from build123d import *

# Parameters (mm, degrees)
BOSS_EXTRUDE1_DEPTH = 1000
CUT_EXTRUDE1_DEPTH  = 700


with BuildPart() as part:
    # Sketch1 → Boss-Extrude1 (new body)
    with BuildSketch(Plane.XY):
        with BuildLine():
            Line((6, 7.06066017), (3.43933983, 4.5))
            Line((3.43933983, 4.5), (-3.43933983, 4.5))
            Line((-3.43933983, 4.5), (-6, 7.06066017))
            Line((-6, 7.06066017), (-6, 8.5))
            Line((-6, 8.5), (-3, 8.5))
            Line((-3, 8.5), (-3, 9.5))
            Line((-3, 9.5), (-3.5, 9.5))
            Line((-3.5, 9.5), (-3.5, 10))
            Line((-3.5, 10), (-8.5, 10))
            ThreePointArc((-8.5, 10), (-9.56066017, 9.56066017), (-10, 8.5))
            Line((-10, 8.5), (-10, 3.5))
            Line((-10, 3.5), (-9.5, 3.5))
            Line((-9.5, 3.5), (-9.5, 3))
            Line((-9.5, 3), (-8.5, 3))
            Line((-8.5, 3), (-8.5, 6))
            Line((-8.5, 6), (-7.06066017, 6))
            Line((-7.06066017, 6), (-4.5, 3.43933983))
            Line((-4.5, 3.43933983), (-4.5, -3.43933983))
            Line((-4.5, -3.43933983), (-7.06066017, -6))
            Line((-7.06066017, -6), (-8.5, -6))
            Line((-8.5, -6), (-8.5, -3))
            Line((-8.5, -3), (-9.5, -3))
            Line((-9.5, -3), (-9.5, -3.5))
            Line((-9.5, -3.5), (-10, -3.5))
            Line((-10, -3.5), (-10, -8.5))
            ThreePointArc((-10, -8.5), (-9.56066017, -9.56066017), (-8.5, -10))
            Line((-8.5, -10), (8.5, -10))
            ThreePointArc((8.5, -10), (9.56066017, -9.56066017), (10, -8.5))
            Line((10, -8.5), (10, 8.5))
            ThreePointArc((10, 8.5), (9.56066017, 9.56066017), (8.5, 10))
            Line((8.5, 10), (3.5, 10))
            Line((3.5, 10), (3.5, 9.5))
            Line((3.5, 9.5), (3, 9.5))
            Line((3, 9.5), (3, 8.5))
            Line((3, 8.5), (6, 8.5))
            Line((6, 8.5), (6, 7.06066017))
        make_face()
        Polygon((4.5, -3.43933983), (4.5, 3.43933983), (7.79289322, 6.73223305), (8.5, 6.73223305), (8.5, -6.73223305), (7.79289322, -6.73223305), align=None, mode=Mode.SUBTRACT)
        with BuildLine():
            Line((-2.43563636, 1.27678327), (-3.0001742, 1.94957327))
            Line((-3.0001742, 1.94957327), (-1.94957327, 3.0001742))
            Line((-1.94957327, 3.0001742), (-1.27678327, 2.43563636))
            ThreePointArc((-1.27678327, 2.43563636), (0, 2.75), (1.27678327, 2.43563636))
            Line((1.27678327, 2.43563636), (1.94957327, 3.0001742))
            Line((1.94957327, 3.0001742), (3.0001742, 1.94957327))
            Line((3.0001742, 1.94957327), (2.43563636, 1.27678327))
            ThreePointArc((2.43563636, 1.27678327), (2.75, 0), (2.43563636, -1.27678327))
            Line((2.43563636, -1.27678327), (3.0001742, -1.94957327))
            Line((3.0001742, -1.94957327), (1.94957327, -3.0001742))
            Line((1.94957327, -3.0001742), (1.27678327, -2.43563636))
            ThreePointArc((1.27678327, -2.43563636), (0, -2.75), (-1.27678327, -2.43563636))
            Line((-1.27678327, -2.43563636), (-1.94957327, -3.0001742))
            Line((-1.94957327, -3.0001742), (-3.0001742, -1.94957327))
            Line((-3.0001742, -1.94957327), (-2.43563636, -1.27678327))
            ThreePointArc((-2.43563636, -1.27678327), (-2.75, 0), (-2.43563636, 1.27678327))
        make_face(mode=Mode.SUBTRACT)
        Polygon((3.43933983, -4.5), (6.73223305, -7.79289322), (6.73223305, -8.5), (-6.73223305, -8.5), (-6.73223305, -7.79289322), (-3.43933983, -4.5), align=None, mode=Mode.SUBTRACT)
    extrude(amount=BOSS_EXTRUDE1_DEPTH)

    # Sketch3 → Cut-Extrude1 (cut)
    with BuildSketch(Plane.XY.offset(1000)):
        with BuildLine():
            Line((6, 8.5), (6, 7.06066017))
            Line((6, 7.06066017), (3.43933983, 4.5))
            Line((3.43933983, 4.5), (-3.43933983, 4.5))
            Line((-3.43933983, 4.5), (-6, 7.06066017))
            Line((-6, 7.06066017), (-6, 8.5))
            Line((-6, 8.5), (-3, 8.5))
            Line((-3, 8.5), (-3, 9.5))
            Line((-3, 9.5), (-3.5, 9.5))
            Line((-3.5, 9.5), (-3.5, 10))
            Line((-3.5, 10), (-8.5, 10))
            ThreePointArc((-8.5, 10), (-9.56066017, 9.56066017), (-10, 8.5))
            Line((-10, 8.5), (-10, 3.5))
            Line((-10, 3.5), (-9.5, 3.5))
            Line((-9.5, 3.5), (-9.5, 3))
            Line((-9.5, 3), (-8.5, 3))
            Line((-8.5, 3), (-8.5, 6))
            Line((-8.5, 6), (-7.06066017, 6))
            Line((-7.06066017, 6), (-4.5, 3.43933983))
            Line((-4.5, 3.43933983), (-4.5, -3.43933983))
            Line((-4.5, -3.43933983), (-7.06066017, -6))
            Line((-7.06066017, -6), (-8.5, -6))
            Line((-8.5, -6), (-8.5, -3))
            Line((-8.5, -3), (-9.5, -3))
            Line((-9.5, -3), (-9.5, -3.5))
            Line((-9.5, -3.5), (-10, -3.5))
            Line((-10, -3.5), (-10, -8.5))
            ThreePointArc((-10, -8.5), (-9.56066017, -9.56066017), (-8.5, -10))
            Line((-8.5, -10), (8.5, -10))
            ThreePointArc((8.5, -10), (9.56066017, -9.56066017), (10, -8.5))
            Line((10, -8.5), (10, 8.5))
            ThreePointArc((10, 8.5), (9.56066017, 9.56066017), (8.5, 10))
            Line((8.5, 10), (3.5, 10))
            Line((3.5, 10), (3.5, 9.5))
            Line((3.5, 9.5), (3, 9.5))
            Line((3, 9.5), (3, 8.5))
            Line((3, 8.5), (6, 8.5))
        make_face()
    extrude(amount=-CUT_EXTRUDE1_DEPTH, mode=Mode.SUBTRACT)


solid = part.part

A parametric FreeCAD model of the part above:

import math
import FreeCAD as App
import Part
import Sketcher

V = App.Vector
Q = App.Units.Quantity


def add_polygon(sketch, points):
    """Adds a closed chain of lines whose ends are joined by coincident constraints."""
    first, n = sketch.GeometryCount, len(points)
    for a, b in zip(points, points[1:] + points[:1]):
        sketch.addGeometry(Part.LineSegment(App.Vector(*a, 0), App.Vector(*b, 0)), False)
    for i in range(n):
        sketch.addConstraint(Sketcher.Constraint("Coincident", first + i, 2, first + (i + 1) % n, 1))

doc = App.newDocument("Part")
params = doc.addObject("Spreadsheet::Sheet", "Params")
for row, (alias, value) in enumerate([
    ("sketch1_radius", "1.5 mm"),
    ("sketch1_width", "3 mm"),
    ("sketch1_width2", "5 mm"),
    ("sketch1_width3", "1 mm"),
    ("sketch1_width4", "17 mm"),
    ("pad1_length", "1000 mm"),
    ("sketch2_radius", "1.5 mm"),
    ("sketch2_width", "3 mm"),
    ("sketch2_width2", "5 mm"),
    ("sketch2_width3", "1 mm"),
    ("sketch2_width4", "17 mm"),
    ("pocket1_length", "700 mm"),
], start=1):
    params.set(f"A{row}", alias)
    params.set(f"B{row}", "=" + value)
    params.setAlias(f"B{row}", alias)

body = doc.addObject("PartDesign::Body", "Body")

sketch1 = body.newObject("Sketcher::SketchObject", "Sketch")
sketch1.AttachmentSupport = (doc.getObject("XY_Plane"), [""])
sketch1.MapMode = "FlatFace"
sketch1.addGeometry(Part.LineSegment(V(6, 7.06066, 0), V(3.43934, 4.5, 0)), False)
sketch1.addGeometry(Part.LineSegment(V(3.43934, 4.5, 0), V(-3.43934, 4.5, 0)), False)
sketch1.addGeometry(Part.LineSegment(V(-3.43934, 4.5, 0), V(-6, 7.06066, 0)), False)
sketch1.addGeometry(Part.LineSegment(V(-6, 7.06066, 0), V(-6, 8.5, 0)), False)
sketch1.addGeometry(Part.LineSegment(V(-6, 8.5, 0), V(-3, 8.5, 0)), False)
sketch1.addGeometry(Part.LineSegment(V(-3, 8.5, 0), V(-3, 9.5, 0)), False)
sketch1.addGeometry(Part.LineSegment(V(-3, 9.5, 0), V(-3.5, 9.5, 0)), False)
sketch1.addGeometry(Part.LineSegment(V(-3.5, 9.5, 0), V(-3.5, 10, 0)), False)
sketch1.addGeometry(Part.LineSegment(V(-3.5, 10, 0), V(-8.5, 10, 0)), False)
sketch1.addGeometry(Part.ArcOfCircle(Part.Circle(V(-8.5, 8.5, 0), V(0, 0, 1), 1.5), math.radians(90), math.radians(180)), False)
sketch1.addGeometry(Part.LineSegment(V(-10, 8.5, 0), V(-10, 3.5, 0)), False)
sketch1.addGeometry(Part.LineSegment(V(-10, 3.5, 0), V(-9.5, 3.5, 0)), False)
sketch1.addGeometry(Part.LineSegment(V(-9.5, 3.5, 0), V(-9.5, 3, 0)), False)
sketch1.addGeometry(Part.LineSegment(V(-9.5, 3, 0), V(-8.5, 3, 0)), False)
sketch1.addGeometry(Part.LineSegment(V(-8.5, 3, 0), V(-8.5, 6, 0)), False)
sketch1.addGeometry(Part.LineSegment(V(-8.5, 6, 0), V(-7.06066, 6, 0)), False)
sketch1.addGeometry(Part.LineSegment(V(-7.06066, 6, 0), V(-4.5, 3.43934, 0)), False)
sketch1.addGeometry(Part.LineSegment(V(-4.5, 3.43934, 0), V(-4.5, -3.43934, 0)), False)
sketch1.addGeometry(Part.LineSegment(V(-4.5, -3.43934, 0), V(-7.06066, -6, 0)), False)
sketch1.addGeometry(Part.LineSegment(V(-7.06066, -6, 0), V(-8.5, -6, 0)), False)
sketch1.addGeometry(Part.LineSegment(V(-8.5, -6, 0), V(-8.5, -3, 0)), False)
sketch1.addGeometry(Part.LineSegment(V(-8.5, -3, 0), V(-9.5, -3, 0)), False)
sketch1.addGeometry(Part.LineSegment(V(-9.5, -3, 0), V(-9.5, -3.5, 0)), False)
sketch1.addGeometry(Part.LineSegment(V(-9.5, -3.5, 0), V(-10, -3.5, 0)), False)
sketch1.addGeometry(Part.LineSegment(V(-10, -3.5, 0), V(-10, -8.5, 0)), False)
sketch1.addGeometry(Part.ArcOfCircle(Part.Circle(V(-8.5, -8.5, 0), V(0, 0, 1), 1.5), math.radians(-180), math.radians(-90)), False)
sketch1.addGeometry(Part.LineSegment(V(-8.5, -10, 0), V(8.5, -10, 0)), False)
sketch1.addGeometry(Part.ArcOfCircle(Part.Circle(V(8.5, -8.5, 0), V(0, 0, 1), 1.5), math.radians(-90), math.radians(0)), False)
sketch1.addGeometry(Part.LineSegment(V(10, -8.5, 0), V(10, 8.5, 0)), False)
sketch1.addGeometry(Part.ArcOfCircle(Part.Circle(V(8.5, 8.5, 0), V(0, 0, 1), 1.5), math.radians(0), math.radians(90)), False)
sketch1.addGeometry(Part.LineSegment(V(8.5, 10, 0), V(3.5, 10, 0)), False)
sketch1.addGeometry(Part.LineSegment(V(3.5, 10, 0), V(3.5, 9.5, 0)), False)
sketch1.addGeometry(Part.LineSegment(V(3.5, 9.5, 0), V(3, 9.5, 0)), False)
sketch1.addGeometry(Part.LineSegment(V(3, 9.5, 0), V(3, 8.5, 0)), False)
sketch1.addGeometry(Part.LineSegment(V(3, 8.5, 0), V(6, 8.5, 0)), False)
sketch1.addGeometry(Part.LineSegment(V(6, 8.5, 0), V(6, 7.06066, 0)), False)
add_polygon(sketch1, [(-3.43934, -4.5), (3.43934, -4.5), (6.732233, -7.792893), (6.732233, -8.5), (-6.732233, -8.5), (-6.732233, -7.792893)])
sketch1.addGeometry(Part.ArcOfCircle(Part.Circle(V(0, 0, 0), V(0, 0, 1), 2.75), math.radians(152.336053), math.radians(207.663947)), False)
sketch1.addGeometry(Part.LineSegment(V(-2.435636, 1.276783, 0), V(-3.000174, 1.949573, 0)), False)
sketch1.addGeometry(Part.LineSegment(V(-3.000174, 1.949573, 0), V(-1.949573, 3.000174, 0)), False)
sketch1.addGeometry(Part.LineSegment(V(-1.949573, 3.000174, 0), V(-1.276783, 2.435636, 0)), False)
sketch1.addGeometry(Part.ArcOfCircle(Part.Circle(V(0, 0, 0), V(0, 0, 1), 2.75), math.radians(62.336053), math.radians(117.663947)), False)
sketch1.addGeometry(Part.LineSegment(V(1.276783, 2.435636, 0), V(1.949573, 3.000174, 0)), False)
sketch1.addGeometry(Part.LineSegment(V(1.949573, 3.000174, 0), V(3.000174, 1.949573, 0)), False)
sketch1.addGeometry(Part.LineSegment(V(3.000174, 1.949573, 0), V(2.435636, 1.276783, 0)), False)
sketch1.addGeometry(Part.ArcOfCircle(Part.Circle(V(0, 0, 0), V(0, 0, 1), 2.75), math.radians(-27.663947), math.radians(27.663947)), False)
sketch1.addGeometry(Part.LineSegment(V(2.435636, -1.276783, 0), V(3.000174, -1.949573, 0)), False)
sketch1.addGeometry(Part.LineSegment(V(3.000174, -1.949573, 0), V(1.949573, -3.000174, 0)), False)
sketch1.addGeometry(Part.LineSegment(V(1.949573, -3.000174, 0), V(1.276783, -2.435636, 0)), False)
sketch1.addGeometry(Part.ArcOfCircle(Part.Circle(V(0, 0, 0), V(0, 0, 1), 2.75), math.radians(-117.663947), math.radians(-62.336053)), False)
sketch1.addGeometry(Part.LineSegment(V(-1.276783, -2.435636, 0), V(-1.949573, -3.000174, 0)), False)
sketch1.addGeometry(Part.LineSegment(V(-1.949573, -3.000174, 0), V(-3.000174, -1.949573, 0)), False)
sketch1.addGeometry(Part.LineSegment(V(-3.000174, -1.949573, 0), V(-2.435636, -1.276783, 0)), False)
add_polygon(sketch1, [(7.792893, -6.732233), (4.5, -3.43934), (4.5, 3.43934), (7.792893, 6.732233), (8.5, 6.732233), (8.5, -6.732233)])
sketch1.addConstraint(Sketcher.Constraint("Coincident", 0, 2, 1, 1))
sketch1.addConstraint(Sketcher.Constraint("Coincident", 1, 2, 2, 1))
sketch1.addConstraint(Sketcher.Constraint("Coincident", 2, 2, 3, 1))
sketch1.addConstraint(Sketcher.Constraint("Coincident", 3, 2, 4, 1))
sketch1.addConstraint(Sketcher.Constraint("Coincident", 4, 2, 5, 1))
sketch1.addConstraint(Sketcher.Constraint("Coincident", 5, 2, 6, 1))
sketch1.addConstraint(Sketcher.Constraint("Coincident", 6, 2, 7, 1))
sketch1.addConstraint(Sketcher.Constraint("Coincident", 7, 2, 8, 1))
sketch1.addConstraint(Sketcher.Constraint("Tangent", 8, 2, 9, 1))
sketch1.addConstraint(Sketcher.Constraint("Tangent", 9, 2, 10, 1))
sketch1.addConstraint(Sketcher.Constraint("Coincident", 10, 2, 11, 1))
sketch1.addConstraint(Sketcher.Constraint("Coincident", 11, 2, 12, 1))
sketch1.addConstraint(Sketcher.Constraint("Coincident", 12, 2, 13, 1))
sketch1.addConstraint(Sketcher.Constraint("Coincident", 13, 2, 14, 1))
sketch1.addConstraint(Sketcher.Constraint("Coincident", 14, 2, 15, 1))
sketch1.addConstraint(Sketcher.Constraint("Coincident", 15, 2, 16, 1))
sketch1.addConstraint(Sketcher.Constraint("Coincident", 16, 2, 17, 1))
sketch1.addConstraint(Sketcher.Constraint("Coincident", 17, 2, 18, 1))
sketch1.addConstraint(Sketcher.Constraint("Coincident", 18, 2, 19, 1))
sketch1.addConstraint(Sketcher.Constraint("Coincident", 19, 2, 20, 1))
sketch1.addConstraint(Sketcher.Constraint("Coincident", 20, 2, 21, 1))
sketch1.addConstraint(Sketcher.Constraint("Coincident", 21, 2, 22, 1))
sketch1.addConstraint(Sketcher.Constraint("Coincident", 22, 2, 23, 1))
sketch1.addConstraint(Sketcher.Constraint("Coincident", 23, 2, 24, 1))
sketch1.addConstraint(Sketcher.Constraint("Tangent", 24, 2, 25, 1))
sketch1.addConstraint(Sketcher.Constraint("Tangent", 25, 2, 26, 1))
sketch1.addConstraint(Sketcher.Constraint("Tangent", 26, 2, 27, 1))
sketch1.addConstraint(Sketcher.Constraint("Tangent", 27, 2, 28, 1))
sketch1.addConstraint(Sketcher.Constraint("Tangent", 28, 2, 29, 1))
sketch1.addConstraint(Sketcher.Constraint("Tangent", 29, 2, 30, 1))
sketch1.addConstraint(Sketcher.Constraint("Coincident", 30, 2, 31, 1))
sketch1.addConstraint(Sketcher.Constraint("Coincident", 31, 2, 32, 1))
sketch1.addConstraint(Sketcher.Constraint("Coincident", 32, 2, 33, 1))
sketch1.addConstraint(Sketcher.Constraint("Coincident", 33, 2, 34, 1))
sketch1.addConstraint(Sketcher.Constraint("Coincident", 34, 2, 35, 1))
sketch1.addConstraint(Sketcher.Constraint("Coincident", 35, 2, 0, 1))
sketch1.addConstraint(Sketcher.Constraint("Coincident", 42, 1, 43, 1))
sketch1.addConstraint(Sketcher.Constraint("Coincident", 43, 2, 44, 1))
sketch1.addConstraint(Sketcher.Constraint("Coincident", 44, 2, 45, 1))
sketch1.addConstraint(Sketcher.Constraint("Coincident", 45, 2, 46, 2))
sketch1.addConstraint(Sketcher.Constraint("Coincident", 46, 1, 47, 1))
sketch1.addConstraint(Sketcher.Constraint("Coincident", 47, 2, 48, 1))
sketch1.addConstraint(Sketcher.Constraint("Coincident", 48, 2, 49, 1))
sketch1.addConstraint(Sketcher.Constraint("Coincident", 49, 2, 50, 2))
sketch1.addConstraint(Sketcher.Constraint("Coincident", 50, 1, 51, 1))
sketch1.addConstraint(Sketcher.Constraint("Coincident", 51, 2, 52, 1))
sketch1.addConstraint(Sketcher.Constraint("Coincident", 52, 2, 53, 1))
sketch1.addConstraint(Sketcher.Constraint("Coincident", 53, 2, 54, 2))
sketch1.addConstraint(Sketcher.Constraint("Coincident", 54, 1, 55, 1))
sketch1.addConstraint(Sketcher.Constraint("Coincident", 55, 2, 56, 1))
sketch1.addConstraint(Sketcher.Constraint("Coincident", 56, 2, 57, 1))
sketch1.addConstraint(Sketcher.Constraint("Coincident", 57, 2, 42, 2))
sketch1.addConstraint(Sketcher.Constraint("Horizontal", 1))
sketch1.addConstraint(Sketcher.Constraint("Vertical", 3))
sketch1.addConstraint(Sketcher.Constraint("Horizontal", 4))
sketch1.addConstraint(Sketcher.Constraint("Vertical", 5))
sketch1.addConstraint(Sketcher.Constraint("Horizontal", 6))
sketch1.addConstraint(Sketcher.Constraint("Vertical", 7))
sketch1.addConstraint(Sketcher.Constraint("Horizontal", 8))
sketch1.addConstraint(Sketcher.Constraint("Vertical", 10))
sketch1.addConstraint(Sketcher.Constraint("Horizontal", 11))
sketch1.addConstraint(Sketcher.Constraint("Vertical", 12))
sketch1.addConstraint(Sketcher.Constraint("Horizontal", 13))
sketch1.addConstraint(Sketcher.Constraint("Vertical", 14))
sketch1.addConstraint(Sketcher.Constraint("Horizontal", 15))
sketch1.addConstraint(Sketcher.Constraint("Vertical", 17))
sketch1.addConstraint(Sketcher.Constraint("Horizontal", 19))
sketch1.addConstraint(Sketcher.Constraint("Vertical", 20))
sketch1.addConstraint(Sketcher.Constraint("Horizontal", 21))
sketch1.addConstraint(Sketcher.Constraint("Vertical", 22))
sketch1.addConstraint(Sketcher.Constraint("Horizontal", 23))
sketch1.addConstraint(Sketcher.Constraint("Vertical", 24))
sketch1.addConstraint(Sketcher.Constraint("Horizontal", 26))
sketch1.addConstraint(Sketcher.Constraint("Vertical", 28))
sketch1.addConstraint(Sketcher.Constraint("Horizontal", 30))
sketch1.addConstraint(Sketcher.Constraint("Vertical", 31))
sketch1.addConstraint(Sketcher.Constraint("Horizontal", 32))
sketch1.addConstraint(Sketcher.Constraint("Vertical", 33))
sketch1.addConstraint(Sketcher.Constraint("Horizontal", 34))
sketch1.addConstraint(Sketcher.Constraint("Vertical", 35))
sketch1.addConstraint(Sketcher.Constraint("Horizontal", 36))
sketch1.addConstraint(Sketcher.Constraint("Vertical", 38))
sketch1.addConstraint(Sketcher.Constraint("Horizontal", 39))
sketch1.addConstraint(Sketcher.Constraint("Vertical", 40))
sketch1.addConstraint(Sketcher.Constraint("Vertical", 59))
sketch1.addConstraint(Sketcher.Constraint("Horizontal", 61))
sketch1.addConstraint(Sketcher.Constraint("Vertical", 62))
sketch1.addConstraint(Sketcher.Constraint("Horizontal", 63))
sketch1.addConstraint(Sketcher.Constraint("Coincident", 42, 3, -1, 1))
sketch1.addConstraint(Sketcher.Constraint("Coincident", 46, 3, -1, 1))
sketch1.addConstraint(Sketcher.Constraint("Coincident", 50, 3, -1, 1))
sketch1.addConstraint(Sketcher.Constraint("Coincident", 54, 3, -1, 1))
sketch1.addConstraint(Sketcher.Constraint("Equal", 9, 25))
sketch1.addConstraint(Sketcher.Constraint("Equal", 25, 27))
sketch1.addConstraint(Sketcher.Constraint("Equal", 27, 29))
sketch1.addConstraint(Sketcher.Constraint("Equal", 42, 46))
sketch1.addConstraint(Sketcher.Constraint("Equal", 46, 50))
sketch1.addConstraint(Sketcher.Constraint("Equal", 50, 54))
sketch1.addConstraint(Sketcher.Constraint("Symmetric", 9, 3, 27, 3, -1, 1))
sketch1.addConstraint(Sketcher.Constraint("Symmetric", 25, 3, 29, 3, -1, 1))
sketch1.addConstraint(Sketcher.Constraint("Symmetric", 1, 2, 36, 2, -1, 1))
sketch1.addConstraint(Sketcher.Constraint("Symmetric", 43, 2, 51, 2, -1, 1))
sketch1.addConstraint(Sketcher.Constraint("Symmetric", 44, 2, 52, 2, -1, 1))
sketch1.addConstraint(Sketcher.Constraint("Symmetric", 47, 2, 55, 2, -1, 1))
sketch1.addConstraint(Sketcher.Constraint("Symmetric", 48, 2, 56, 2, -1, 1))
sketch1.addConstraint(Sketcher.Constraint("Symmetric", 16, 2, 58, 2, -1, 1))
sketch1.addConstraint(Sketcher.Constraint("Symmetric", 6, 2, 31, 2, -2))
sketch1.addConstraint(Sketcher.Constraint("Symmetric", 4, 2, 33, 2, -2))
sketch1.addConstraint(Sketcher.Constraint("Symmetric", 2, 2, 35, 2, -2))
sketch1.addConstraint(Sketcher.Constraint("Symmetric", 37, 2, 40, 2, -2))
sketch1.addConstraint(Sketcher.Constraint("Symmetric", 44, 2, 47, 2, -2))
sketch1.addConstraint(Sketcher.Constraint("Symmetric", 43, 2, 48, 2, -2))
sketch1.addConstraint(Sketcher.Constraint("Symmetric", 15, 2, 18, 2, -1))
sketch1.addConstraint(Sketcher.Constraint("Symmetric", 13, 2, 20, 2, -1))
sketch1.addConstraint(Sketcher.Constraint("Symmetric", 11, 2, 22, 2, -1))
sketch1.addConstraint(Sketcher.Constraint("Symmetric", 60, 2, 63, 2, -1))
sketch1.addConstraint(Sketcher.Constraint("Perpendicular", 0, 2))
sketch1.addConstraint(Sketcher.Constraint("Parallel", 2, 16))
sketch1.addConstraint(Sketcher.Constraint("Perpendicular", 16, 18))
sketch1.addConstraint(Sketcher.Constraint("Perpendicular", 18, 37))
sketch1.addConstraint(Sketcher.Constraint("Perpendicular", 37, 41))
sketch1.addConstraint(Sketcher.Constraint("Parallel", 41, 44))
sketch1.addConstraint(Sketcher.Constraint("Perpendicular", 43, 47))
sketch1.addConstraint(Sketcher.Constraint("Perpendicular", 44, 48))
sketch1.addConstraint(Sketcher.Constraint("Perpendicular", 45, 49))
sketch1.addConstraint(Sketcher.Constraint("Perpendicular", 47, 51))
sketch1.addConstraint(Sketcher.Constraint("Perpendicular", 49, 53))
sketch1.addConstraint(Sketcher.Constraint("Perpendicular", 51, 55))
sketch1.addConstraint(Sketcher.Constraint("Perpendicular", 53, 57))
sketch1.addConstraint(Sketcher.Constraint("Parallel", 56, 58))
sketch1.addConstraint(Sketcher.Constraint("Perpendicular", 58, 60))
sketch1.addConstraint(Sketcher.Constraint("Horizontal", 29, 3, 3, 2))
sketch1.addConstraint(Sketcher.Constraint("Horizontal", 27, 2, 38, 2))
sketch1.addConstraint(Sketcher.Constraint("Horizontal", 45, 2, 46, 1))
sketch1.addConstraint(Sketcher.Constraint("Vertical", 8, 2, 13, 2))
sketch1.addConstraint(Sketcher.Constraint("Vertical", 29, 2, 61, 2))
sketch1.addConstraint(Sketcher.Constraint("Equal", 6, 11))
sketch1.addConstraint(Sketcher.Constraint("Equal", 19, 3))
sketch1.addConstraint(Sketcher.Constraint("Equal", 21, 5))
sketch1.addConstraint(Sketcher.Constraint("Equal", 30, 10))
sketch1.addConstraint(Sketcher.Constraint("Equal", 7, 12))
sketch1.addConstraint(Sketcher.Constraint("Equal", 34, 14))
sketch1.addConstraint(Sketcher.Constraint("Equal", 36, 17))
sketch1.addConstraint(Sketcher.Constraint("Equal", 26, 28))
sketch1.addConstraint(Sketcher.Constraint("Equal", 63, 38))
sketch1.addConstraint(Sketcher.Constraint("Equal", 43, 45))
sketch1.addConstraint(Sketcher.Constraint("Radius", 9, Q("1.5 mm")))
sketch1.addConstraint(Sketcher.Constraint("DistanceX", 4, 1, 4, 2, Q("3 mm")))
sketch1.addConstraint(Sketcher.Constraint("DistanceX", 8, 2, 8, 1, Q("5 mm")))
sketch1.addConstraint(Sketcher.Constraint("DistanceX", 13, 1, 13, 2, Q("1 mm")))
sketch1.addConstraint(Sketcher.Constraint("DistanceX", 26, 1, 26, 2, Q("17 mm")))
sketch1.addConstraint(Sketcher.Constraint("Angle", 43, Q("130 deg")))
sketch1.addConstraint(Sketcher.Constraint("Radius", 42, Q("2.75 mm")))
sketch1.addConstraint(Sketcher.Constraint("DistanceY", -1, 1, 0, 2, Q("4.5 mm")))
sketch1.addConstraint(Sketcher.Constraint("DistanceX", 1, 2, 1, 1, Q("6.87868 mm")))
sketch1.addConstraint(Sketcher.Constraint("DistanceX", 39, 2, 39, 1, Q("13.464466 mm")))
sketch1.addConstraint(Sketcher.Constraint("Distance", 43, Q("0.878265 mm")))
sketch1.addConstraint(Sketcher.Constraint("Distance", 44, Q("1.485774 mm")))
sketch1.setExpression("Constraints[158]", "Params.sketch1_radius")
sketch1.setExpression("Constraints[159]", "Params.sketch1_width")
sketch1.setExpression("Constraints[160]", "Params.sketch1_width2")
sketch1.setExpression("Constraints[161]", "Params.sketch1_width3")
sketch1.setExpression("Constraints[162]", "Params.sketch1_width4")
pad1 = body.newObject("PartDesign::Pad", "Pad")
pad1.Profile = sketch1
pad1.setExpression("Length", "Params.pad1_length")

sketch2 = body.newObject("Sketcher::SketchObject", "Sketch001")
sketch2.AttachmentSupport = (doc.getObject("XY_Plane"), [""])
sketch2.MapMode = "FlatFace"
sketch2.AttachmentOffset = App.Placement(V(0, 0, 1000), App.Rotation())
sketch2.addGeometry(Part.LineSegment(V(6, 8.5, 0), V(6, 7.06066, 0)), False)
sketch2.addGeometry(Part.LineSegment(V(6, 7.06066, 0), V(3.43934, 4.5, 0)), False)
sketch2.addGeometry(Part.LineSegment(V(3.43934, 4.5, 0), V(-3.43934, 4.5, 0)), False)
sketch2.addGeometry(Part.LineSegment(V(-3.43934, 4.5, 0), V(-6, 7.06066, 0)), False)
sketch2.addGeometry(Part.LineSegment(V(-6, 7.06066, 0), V(-6, 8.5, 0)), False)
sketch2.addGeometry(Part.LineSegment(V(-6, 8.5, 0), V(-3, 8.5, 0)), False)
sketch2.addGeometry(Part.LineSegment(V(-3, 8.5, 0), V(-3, 9.5, 0)), False)
sketch2.addGeometry(Part.LineSegment(V(-3, 9.5, 0), V(-3.5, 9.5, 0)), False)
sketch2.addGeometry(Part.LineSegment(V(-3.5, 9.5, 0), V(-3.5, 10, 0)), False)
sketch2.addGeometry(Part.LineSegment(V(-3.5, 10, 0), V(-8.5, 10, 0)), False)
sketch2.addGeometry(Part.ArcOfCircle(Part.Circle(V(-8.5, 8.5, 0), V(0, 0, 1), 1.5), math.radians(90), math.radians(180)), False)
sketch2.addGeometry(Part.LineSegment(V(-10, 8.5, 0), V(-10, 3.5, 0)), False)
sketch2.addGeometry(Part.LineSegment(V(-10, 3.5, 0), V(-9.5, 3.5, 0)), False)
sketch2.addGeometry(Part.LineSegment(V(-9.5, 3.5, 0), V(-9.5, 3, 0)), False)
sketch2.addGeometry(Part.LineSegment(V(-9.5, 3, 0), V(-8.5, 3, 0)), False)
sketch2.addGeometry(Part.LineSegment(V(-8.5, 3, 0), V(-8.5, 6, 0)), False)
sketch2.addGeometry(Part.LineSegment(V(-8.5, 6, 0), V(-7.06066, 6, 0)), False)
sketch2.addGeometry(Part.LineSegment(V(-7.06066, 6, 0), V(-4.5, 3.43934, 0)), False)
sketch2.addGeometry(Part.LineSegment(V(-4.5, 3.43934, 0), V(-4.5, -3.43934, 0)), False)
sketch2.addGeometry(Part.LineSegment(V(-4.5, -3.43934, 0), V(-7.06066, -6, 0)), False)
sketch2.addGeometry(Part.LineSegment(V(-7.06066, -6, 0), V(-8.5, -6, 0)), False)
sketch2.addGeometry(Part.LineSegment(V(-8.5, -6, 0), V(-8.5, -3, 0)), False)
sketch2.addGeometry(Part.LineSegment(V(-8.5, -3, 0), V(-9.5, -3, 0)), False)
sketch2.addGeometry(Part.LineSegment(V(-9.5, -3, 0), V(-9.5, -3.5, 0)), False)
sketch2.addGeometry(Part.LineSegment(V(-9.5, -3.5, 0), V(-10, -3.5, 0)), False)
sketch2.addGeometry(Part.LineSegment(V(-10, -3.5, 0), V(-10, -8.5, 0)), False)
sketch2.addGeometry(Part.ArcOfCircle(Part.Circle(V(-8.5, -8.5, 0), V(0, 0, 1), 1.5), math.radians(-180), math.radians(-90)), False)
sketch2.addGeometry(Part.LineSegment(V(-8.5, -10, 0), V(8.5, -10, 0)), False)
sketch2.addGeometry(Part.ArcOfCircle(Part.Circle(V(8.5, -8.5, 0), V(0, 0, 1), 1.5), math.radians(-90), math.radians(0)), False)
sketch2.addGeometry(Part.LineSegment(V(10, -8.5, 0), V(10, 8.5, 0)), False)
sketch2.addGeometry(Part.ArcOfCircle(Part.Circle(V(8.5, 8.5, 0), V(0, 0, 1), 1.5), math.radians(0), math.radians(90)), False)
sketch2.addGeometry(Part.LineSegment(V(8.5, 10, 0), V(3.5, 10, 0)), False)
sketch2.addGeometry(Part.LineSegment(V(3.5, 10, 0), V(3.5, 9.5, 0)), False)
sketch2.addGeometry(Part.LineSegment(V(3.5, 9.5, 0), V(3, 9.5, 0)), False)
sketch2.addGeometry(Part.LineSegment(V(3, 9.5, 0), V(3, 8.5, 0)), False)
sketch2.addGeometry(Part.LineSegment(V(3, 8.5, 0), V(6, 8.5, 0)), False)
sketch2.addConstraint(Sketcher.Constraint("Coincident", 0, 2, 1, 1))
sketch2.addConstraint(Sketcher.Constraint("Coincident", 1, 2, 2, 1))
sketch2.addConstraint(Sketcher.Constraint("Coincident", 2, 2, 3, 1))
sketch2.addConstraint(Sketcher.Constraint("Coincident", 3, 2, 4, 1))
sketch2.addConstraint(Sketcher.Constraint("Coincident", 4, 2, 5, 1))
sketch2.addConstraint(Sketcher.Constraint("Coincident", 5, 2, 6, 1))
sketch2.addConstraint(Sketcher.Constraint("Coincident", 6, 2, 7, 1))
sketch2.addConstraint(Sketcher.Constraint("Coincident", 7, 2, 8, 1))
sketch2.addConstraint(Sketcher.Constraint("Coincident", 8, 2, 9, 1))
sketch2.addConstraint(Sketcher.Constraint("Tangent", 9, 2, 10, 1))
sketch2.addConstraint(Sketcher.Constraint("Tangent", 10, 2, 11, 1))
sketch2.addConstraint(Sketcher.Constraint("Coincident", 11, 2, 12, 1))
sketch2.addConstraint(Sketcher.Constraint("Coincident", 12, 2, 13, 1))
sketch2.addConstraint(Sketcher.Constraint("Coincident", 13, 2, 14, 1))
sketch2.addConstraint(Sketcher.Constraint("Coincident", 14, 2, 15, 1))
sketch2.addConstraint(Sketcher.Constraint("Coincident", 15, 2, 16, 1))
sketch2.addConstraint(Sketcher.Constraint("Coincident", 16, 2, 17, 1))
sketch2.addConstraint(Sketcher.Constraint("Coincident", 17, 2, 18, 1))
sketch2.addConstraint(Sketcher.Constraint("Coincident", 18, 2, 19, 1))
sketch2.addConstraint(Sketcher.Constraint("Coincident", 19, 2, 20, 1))
sketch2.addConstraint(Sketcher.Constraint("Coincident", 20, 2, 21, 1))
sketch2.addConstraint(Sketcher.Constraint("Coincident", 21, 2, 22, 1))
sketch2.addConstraint(Sketcher.Constraint("Coincident", 22, 2, 23, 1))
sketch2.addConstraint(Sketcher.Constraint("Coincident", 23, 2, 24, 1))
sketch2.addConstraint(Sketcher.Constraint("Coincident", 24, 2, 25, 1))
sketch2.addConstraint(Sketcher.Constraint("Tangent", 25, 2, 26, 1))
sketch2.addConstraint(Sketcher.Constraint("Tangent", 26, 2, 27, 1))
sketch2.addConstraint(Sketcher.Constraint("Tangent", 27, 2, 28, 1))
sketch2.addConstraint(Sketcher.Constraint("Tangent", 28, 2, 29, 1))
sketch2.addConstraint(Sketcher.Constraint("Tangent", 29, 2, 30, 1))
sketch2.addConstraint(Sketcher.Constraint("Tangent", 30, 2, 31, 1))
sketch2.addConstraint(Sketcher.Constraint("Coincident", 31, 2, 32, 1))
sketch2.addConstraint(Sketcher.Constraint("Coincident", 32, 2, 33, 1))
sketch2.addConstraint(Sketcher.Constraint("Coincident", 33, 2, 34, 1))
sketch2.addConstraint(Sketcher.Constraint("Coincident", 34, 2, 35, 1))
sketch2.addConstraint(Sketcher.Constraint("Coincident", 35, 2, 0, 1))
sketch2.addConstraint(Sketcher.Constraint("Vertical", 0))
sketch2.addConstraint(Sketcher.Constraint("Horizontal", 2))
sketch2.addConstraint(Sketcher.Constraint("Vertical", 4))
sketch2.addConstraint(Sketcher.Constraint("Horizontal", 5))
sketch2.addConstraint(Sketcher.Constraint("Vertical", 6))
sketch2.addConstraint(Sketcher.Constraint("Horizontal", 7))
sketch2.addConstraint(Sketcher.Constraint("Vertical", 8))
sketch2.addConstraint(Sketcher.Constraint("Horizontal", 9))
sketch2.addConstraint(Sketcher.Constraint("Vertical", 11))
sketch2.addConstraint(Sketcher.Constraint("Horizontal", 12))
sketch2.addConstraint(Sketcher.Constraint("Vertical", 13))
sketch2.addConstraint(Sketcher.Constraint("Horizontal", 14))
sketch2.addConstraint(Sketcher.Constraint("Vertical", 15))
sketch2.addConstraint(Sketcher.Constraint("Horizontal", 16))
sketch2.addConstraint(Sketcher.Constraint("Vertical", 18))
sketch2.addConstraint(Sketcher.Constraint("Horizontal", 20))
sketch2.addConstraint(Sketcher.Constraint("Vertical", 21))
sketch2.addConstraint(Sketcher.Constraint("Horizontal", 22))
sketch2.addConstraint(Sketcher.Constraint("Vertical", 23))
sketch2.addConstraint(Sketcher.Constraint("Horizontal", 24))
sketch2.addConstraint(Sketcher.Constraint("Vertical", 25))
sketch2.addConstraint(Sketcher.Constraint("Horizontal", 27))
sketch2.addConstraint(Sketcher.Constraint("Vertical", 29))
sketch2.addConstraint(Sketcher.Constraint("Horizontal", 31))
sketch2.addConstraint(Sketcher.Constraint("Vertical", 32))
sketch2.addConstraint(Sketcher.Constraint("Horizontal", 33))
sketch2.addConstraint(Sketcher.Constraint("Vertical", 34))
sketch2.addConstraint(Sketcher.Constraint("Horizontal", 35))
sketch2.addConstraint(Sketcher.Constraint("Equal", 10, 26))
sketch2.addConstraint(Sketcher.Constraint("Equal", 26, 28))
sketch2.addConstraint(Sketcher.Constraint("Equal", 28, 30))
sketch2.addConstraint(Sketcher.Constraint("Symmetric", 10, 3, 28, 3, -1, 1))
sketch2.addConstraint(Sketcher.Constraint("Symmetric", 26, 3, 30, 3, -1, 1))
sketch2.addConstraint(Sketcher.Constraint("Symmetric", 0, 2, 3, 2, -2))
sketch2.addConstraint(Sketcher.Constraint("Symmetric", 7, 2, 32, 2, -2))
sketch2.addConstraint(Sketcher.Constraint("Symmetric", 5, 2, 34, 2, -2))
sketch2.addConstraint(Sketcher.Constraint("Symmetric", 16, 2, 19, 2, -1))
sketch2.addConstraint(Sketcher.Constraint("Symmetric", 14, 2, 21, 2, -1))
sketch2.addConstraint(Sketcher.Constraint("Symmetric", 12, 2, 23, 2, -1))
sketch2.addConstraint(Sketcher.Constraint("Perpendicular", 1, 3))
sketch2.addConstraint(Sketcher.Constraint("Parallel", 3, 17))
sketch2.addConstraint(Sketcher.Constraint("Perpendicular", 17, 19))
sketch2.addConstraint(Sketcher.Constraint("Horizontal", 30, 3, 4, 2))
sketch2.addConstraint(Sketcher.Constraint("Vertical", 9, 2, 14, 2))
sketch2.addConstraint(Sketcher.Constraint("Equal", 7, 12))
sketch2.addConstraint(Sketcher.Constraint("Equal", 20, 0))
sketch2.addConstraint(Sketcher.Constraint("Equal", 22, 6))
sketch2.addConstraint(Sketcher.Constraint("Equal", 31, 11))
sketch2.addConstraint(Sketcher.Constraint("Equal", 8, 13))
sketch2.addConstraint(Sketcher.Constraint("Equal", 35, 15))
sketch2.addConstraint(Sketcher.Constraint("Equal", 2, 18))
sketch2.addConstraint(Sketcher.Constraint("Equal", 27, 29))
sketch2.addConstraint(Sketcher.Constraint("Equal", 1, 3))
sketch2.addConstraint(Sketcher.Constraint("Radius", 10, Q("1.5 mm")))
sketch2.addConstraint(Sketcher.Constraint("DistanceX", 5, 1, 5, 2, Q("3 mm")))
sketch2.addConstraint(Sketcher.Constraint("DistanceX", 9, 2, 9, 1, Q("5 mm")))
sketch2.addConstraint(Sketcher.Constraint("DistanceX", 14, 1, 14, 2, Q("1 mm")))
sketch2.addConstraint(Sketcher.Constraint("DistanceX", 27, 1, 27, 2, Q("17 mm")))
sketch2.addConstraint(Sketcher.Constraint("DistanceY", 1, 2, 30, 3, Q("4 mm")))
sketch2.addConstraint(Sketcher.Constraint("DistanceX", 2, 2, 2, 1, Q("6.87868 mm")))
sketch2.setExpression("Constraints[89]", "Params.sketch2_radius")
sketch2.setExpression("Constraints[90]", "Params.sketch2_width")
sketch2.setExpression("Constraints[91]", "Params.sketch2_width2")
sketch2.setExpression("Constraints[92]", "Params.sketch2_width3")
sketch2.setExpression("Constraints[93]", "Params.sketch2_width4")
pocket1 = body.newObject("PartDesign::Pocket", "Pocket")
pocket1.Profile = sketch2
pocket1.setExpression("Length", "Params.pocket1_length")

doc.recompute()
